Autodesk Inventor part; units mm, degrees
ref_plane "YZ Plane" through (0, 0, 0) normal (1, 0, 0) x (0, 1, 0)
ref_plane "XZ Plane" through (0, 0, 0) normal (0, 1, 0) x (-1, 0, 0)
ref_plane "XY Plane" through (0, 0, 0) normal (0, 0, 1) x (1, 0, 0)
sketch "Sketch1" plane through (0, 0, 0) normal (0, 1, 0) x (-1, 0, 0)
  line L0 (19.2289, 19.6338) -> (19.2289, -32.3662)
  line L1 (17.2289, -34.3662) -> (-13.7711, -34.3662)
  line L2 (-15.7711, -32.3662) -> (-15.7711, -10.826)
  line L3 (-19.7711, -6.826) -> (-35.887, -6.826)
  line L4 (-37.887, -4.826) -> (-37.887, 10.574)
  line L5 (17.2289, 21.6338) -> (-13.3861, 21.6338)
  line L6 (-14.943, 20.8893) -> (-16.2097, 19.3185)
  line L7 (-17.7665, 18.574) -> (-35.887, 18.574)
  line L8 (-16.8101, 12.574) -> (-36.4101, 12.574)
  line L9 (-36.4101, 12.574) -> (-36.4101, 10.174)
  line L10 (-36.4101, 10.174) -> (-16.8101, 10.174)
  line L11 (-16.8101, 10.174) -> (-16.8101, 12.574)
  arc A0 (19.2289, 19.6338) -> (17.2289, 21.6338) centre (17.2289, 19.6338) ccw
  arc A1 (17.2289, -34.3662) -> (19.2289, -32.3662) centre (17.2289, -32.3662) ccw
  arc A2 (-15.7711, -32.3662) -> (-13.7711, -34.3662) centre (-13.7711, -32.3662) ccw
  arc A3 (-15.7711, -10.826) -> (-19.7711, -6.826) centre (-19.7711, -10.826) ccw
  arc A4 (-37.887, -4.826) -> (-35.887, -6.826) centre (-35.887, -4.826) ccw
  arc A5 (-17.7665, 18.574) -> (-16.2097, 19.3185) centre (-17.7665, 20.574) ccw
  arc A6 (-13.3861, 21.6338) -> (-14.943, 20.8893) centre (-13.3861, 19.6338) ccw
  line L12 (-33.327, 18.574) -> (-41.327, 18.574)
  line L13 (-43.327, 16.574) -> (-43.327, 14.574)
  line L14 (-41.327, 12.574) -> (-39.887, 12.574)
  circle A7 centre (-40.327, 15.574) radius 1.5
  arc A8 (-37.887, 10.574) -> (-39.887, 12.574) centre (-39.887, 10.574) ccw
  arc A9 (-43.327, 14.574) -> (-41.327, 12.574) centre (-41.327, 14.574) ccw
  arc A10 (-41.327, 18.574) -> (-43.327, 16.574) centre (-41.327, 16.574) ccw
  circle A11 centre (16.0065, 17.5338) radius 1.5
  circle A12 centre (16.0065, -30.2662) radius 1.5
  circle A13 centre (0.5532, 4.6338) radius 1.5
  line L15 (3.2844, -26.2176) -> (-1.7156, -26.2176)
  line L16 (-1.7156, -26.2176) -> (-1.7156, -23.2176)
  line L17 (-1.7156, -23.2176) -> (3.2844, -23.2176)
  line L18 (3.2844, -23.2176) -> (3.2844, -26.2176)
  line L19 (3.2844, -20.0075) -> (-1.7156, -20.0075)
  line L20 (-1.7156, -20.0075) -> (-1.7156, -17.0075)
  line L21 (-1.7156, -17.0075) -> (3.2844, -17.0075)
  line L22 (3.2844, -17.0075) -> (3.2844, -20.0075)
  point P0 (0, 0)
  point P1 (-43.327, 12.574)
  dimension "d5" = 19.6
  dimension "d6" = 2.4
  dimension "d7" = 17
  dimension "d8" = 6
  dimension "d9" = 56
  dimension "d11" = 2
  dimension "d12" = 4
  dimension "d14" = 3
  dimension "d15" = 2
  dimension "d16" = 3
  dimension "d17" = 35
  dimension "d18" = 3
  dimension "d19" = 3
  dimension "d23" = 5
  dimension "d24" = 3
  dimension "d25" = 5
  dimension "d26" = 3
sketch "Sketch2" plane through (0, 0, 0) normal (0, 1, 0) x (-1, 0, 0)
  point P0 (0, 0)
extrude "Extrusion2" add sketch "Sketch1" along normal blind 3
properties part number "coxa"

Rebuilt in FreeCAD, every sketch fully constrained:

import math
import FreeCAD as App
import Part
import Sketcher
from FreeCAD import Vector
Q = App.Units.Quantity


def add_polygon(sketch, points):
    """Adds a closed chain of lines whose ends are joined by coincident constraints."""
    first, n = sketch.GeometryCount, len(points)
    for a, b in zip(points, points[1:] + points[:1]):
        sketch.addGeometry(Part.LineSegment(App.Vector(*a, 0), App.Vector(*b, 0)), False)
    for i in range(n):
        sketch.addConstraint(Sketcher.Constraint("Coincident", first + i, 2, first + (i + 1) % n, 1))

doc = App.newDocument("Part")
body = doc.addObject("PartDesign::Body", "Body")

sketch1 = body.newObject("Sketcher::SketchObject", "Sketch")
sketch1.AttachmentSupport = (doc.getObject("XZ_Plane"), [""])
sketch1.MapMode = "FlatFace"
sketch1.addGeometry(Part.LineSegment(Vector(-19.2289, -32.3662, 0), Vector(-19.2289, 19.6338, 0)), False)
sketch1.addGeometry(Part.ArcOfCircle(Part.Circle(Vector(-17.2289, 19.6338, 0), Vector(0, 0, 1), 2), math.radians(90), math.radians(180)), False)
sketch1.addGeometry(Part.LineSegment(Vector(-17.2289, 21.6338, 0), Vector(13.3861, 21.6338, 0)), False)
sketch1.addGeometry(Part.ArcOfCircle(Part.Circle(Vector(13.3861, 19.6338, 0), Vector(0, 0, 1), 2), math.radians(38.883058), math.radians(90)), False)
sketch1.addGeometry(Part.LineSegment(Vector(14.943, 20.8893, 0), Vector(16.2097, 19.3185, 0)), False)
sketch1.addGeometry(Part.ArcOfCircle(Part.Circle(Vector(17.7665, 20.574, 0), Vector(0, 0, 1), 2), math.radians(-141.115144), math.radians(-90)), False)
sketch1.addGeometry(Part.LineSegment(Vector(17.7665, 18.574, 0), Vector(41.327, 18.574, 0)), False)
sketch1.addGeometry(Part.ArcOfCircle(Part.Circle(Vector(41.327, 16.574, 0), Vector(0, 0, 1), 2), math.radians(0), math.radians(90)), False)
sketch1.addGeometry(Part.LineSegment(Vector(43.327, 16.574, 0), Vector(43.327, 14.574, 0)), False)
sketch1.addGeometry(Part.ArcOfCircle(Part.Circle(Vector(41.327, 14.574, 0), Vector(0, 0, 1), 2), math.radians(-90), math.radians(0)), False)
sketch1.addGeometry(Part.LineSegment(Vector(41.327, 12.574, 0), Vector(39.887, 12.574, 0)), False)
sketch1.addGeometry(Part.ArcOfCircle(Part.Circle(Vector(39.887, 10.574, 0), Vector(0, 0, 1), 2), math.radians(90), math.radians(180)), False)
sketch1.addGeometry(Part.LineSegment(Vector(37.887, 10.574, 0), Vector(37.887, -4.826, 0)), False)
sketch1.addGeometry(Part.ArcOfCircle(Part.Circle(Vector(35.887, -4.826, 0), Vector(0, 0, 1), 2), math.radians(-90), math.radians(0)), False)
sketch1.addGeometry(Part.LineSegment(Vector(35.887, -6.826, 0), Vector(19.7711, -6.826, 0)), False)
sketch1.addGeometry(Part.ArcOfCircle(Part.Circle(Vector(19.7711, -10.826, 0), Vector(0, 0, 1), 4), math.radians(90), math.radians(180)), False)
sketch1.addGeometry(Part.LineSegment(Vector(15.7711, -10.826, 0), Vector(15.7711, -32.3662, 0)), False)
sketch1.addGeometry(Part.ArcOfCircle(Part.Circle(Vector(13.7711, -32.3662, 0), Vector(0, 0, 1), 2), math.radians(-90), math.radians(0)), False)
sketch1.addGeometry(Part.LineSegment(Vector(13.7711, -34.3662, 0), Vector(-17.2289, -34.3662, 0)), False)
sketch1.addGeometry(Part.ArcOfCircle(Part.Circle(Vector(-17.2289, -32.3662, 0), Vector(0, 0, 1), 2), math.radians(180), math.radians(270)), False)
add_polygon(sketch1, [(-3.2844, -23.2176), (-3.2844, -26.2176), (1.7156, -26.2176), (1.7156, -23.2176)])
sketch1.addGeometry(Part.Circle(Vector(-16.0065, -30.2662, 0), Vector(0, 0, 1), 1.5), False)
add_polygon(sketch1, [(-3.2844, -17.0075), (-3.2844, -20.0075), (1.7156, -20.0075), (1.7156, -17.0075)])
sketch1.addGeometry(Part.Circle(Vector(40.327, 15.574, 0), Vector(0, 0, 1), 1.5), False)
add_polygon(sketch1, [(36.4101, 12.574), (16.8101, 12.574), (16.8101, 10.174), (36.4101, 10.174)])
sketch1.addGeometry(Part.Circle(Vector(-0.5532, 4.6338, 0), Vector(0, 0, 1), 1.5), False)
sketch1.addGeometry(Part.Circle(Vector(-16.0065, 17.5338, 0), Vector(0, 0, 1), 1.5), False)
sketch1.addConstraint([
    Sketcher.Constraint("Tangent", 0, 2, 1, 2),
    Sketcher.Constraint("Tangent", 1, 1, 2, 1),
    Sketcher.Constraint("Tangent", 2, 2, 3, 2),
    Sketcher.Constraint("Tangent", 3, 1, 4, 1),
    Sketcher.Constraint("Tangent", 4, 2, 5, 1),
    Sketcher.Constraint("Tangent", 5, 2, 6, 1),
    Sketcher.Constraint("Tangent", 6, 2, 7, 2),
    Sketcher.Constraint("Tangent", 7, 1, 8, 1),
    Sketcher.Constraint("Tangent", 8, 2, 9, 2),
    Sketcher.Constraint("Tangent", 9, 1, 10, 1),
    Sketcher.Constraint("Tangent", 10, 2, 11, 1),
    Sketcher.Constraint("Tangent", 11, 2, 12, 1),
    Sketcher.Constraint("Tangent", 12, 2, 13, 2),
    Sketcher.Constraint("Tangent", 13, 1, 14, 1),
    Sketcher.Constraint("Tangent", 14, 2, 15, 1),
    Sketcher.Constraint("Tangent", 15, 2, 16, 1),
    Sketcher.Constraint("Tangent", 16, 2, 17, 2),
    Sketcher.Constraint("Tangent", 17, 1, 18, 1),
    Sketcher.Constraint("Tangent", 18, 2, 19, 2),
    Sketcher.Constraint("Tangent", 19, 1, 0, 1),
    Sketcher.Constraint("Vertical", 0),
    Sketcher.Constraint("Horizontal", 2),
    Sketcher.Constraint("Horizontal", 6),
    Sketcher.Constraint("Vertical", 8),
    Sketcher.Constraint("Horizontal", 10),
    Sketcher.Constraint("Vertical", 12),
    Sketcher.Constraint("Horizontal", 14),
    Sketcher.Constraint("Vertical", 16),
    Sketcher.Constraint("Horizontal", 18),
    Sketcher.Constraint("Vertical", 20),
    Sketcher.Constraint("Horizontal", 21),
    Sketcher.Constraint("Vertical", 22),
    Sketcher.Constraint("Horizontal", 23),
    Sketcher.Constraint("Vertical", 25),
    Sketcher.Constraint("Horizontal", 26),
    Sketcher.Constraint("Vertical", 27),
    Sketcher.Constraint("Horizontal", 28),
    Sketcher.Constraint("Horizontal", 30),
    Sketcher.Constraint("Vertical", 31),
    Sketcher.Constraint("Horizontal", 32),
    Sketcher.Constraint("Vertical", 33),
    Sketcher.Constraint("Equal", 1, 3),
    Sketcher.Constraint("Equal", 3, 5),
    Sketcher.Constraint("Equal", 5, 7),
    Sketcher.Constraint("Equal", 7, 9),
    Sketcher.Constraint("Equal", 9, 11),
    Sketcher.Constraint("Equal", 11, 13),
    Sketcher.Constraint("Equal", 13, 17),
    Sketcher.Constraint("Equal", 17, 19),
    Sketcher.Constraint("Equal", 24, 29),
    Sketcher.Constraint("Equal", 29, 34),
    Sketcher.Constraint("Equal", 34, 35),
    Sketcher.Constraint("Horizontal", 10, 2, 30, 2),
    Sketcher.Constraint("Vertical", 24, 3, 35, 3),
    Sketcher.Constraint("Vertical", 23, 2, 25, 2),
    Sketcher.Constraint("Vertical", 22, 2, 26, 2),
    Sketcher.Constraint("Equal", 22, 25),
    Sketcher.Constraint("Diameter", 24, Q("3 mm")),
    Sketcher.Constraint("Radius", 1, Q("2 mm")),
    Sketcher.Constraint("Radius", 15, Q("4 mm")),
    Sketcher.Constraint("DistanceX", 21, 1, 21, 2, Q("5 mm")),
    Sketcher.Constraint("DistanceY", 8, 2, 8, 1, Q("2 mm")),
    Sketcher.Constraint("DistanceY", 20, 2, 20, 1, Q("3 mm")),
    Sketcher.Constraint("DistanceX", 30, 2, 30, 1, Q("19.6 mm")),
    Sketcher.Constraint("DistanceY", 31, 2, 31, 1, Q("2.4 mm")),
    Sketcher.Constraint("DistanceY", 11, 3, 29, 3, Q("5 mm")),
    Sketcher.Constraint("DistanceY", 34, 3, 1, 1, Q("17 mm")),
    Sketcher.Constraint("DistanceX", 29, 3, 7, 1, Q("3 mm")),
    Sketcher.Constraint("DistanceX", 18, 2, 18, 1, Q("31 mm")),
    Sketcher.Constraint("DistanceY", 0, 1, 0, 2, Q("52 mm")),
    Sketcher.Constraint("DistanceY", 12, 2, 12, 1, Q("15.4 mm")),
    Sketcher.Constraint("DistanceX", 10, 2, 10, 1, Q("1.44 mm")),
    Sketcher.Constraint("DistanceY", 19, 3, 24, 3, Q("2.1 mm")),
    Sketcher.Constraint("DistanceY", 35, 3, 1, 3, Q("2.1 mm")),
    Sketcher.Constraint("DistanceX", 2, 1, 2, 2, Q("30.615 mm")),
    Sketcher.Constraint("DistanceX", 14, 2, 14, 1, Q("16.116 mm")),
    Sketcher.Constraint("DistanceX", -1, 1, 30, 2, Q("16.81 mm")),
    Sketcher.Constraint("DistanceY", 23, 2, 25, 2, Q("3.21 mm")),
    Sketcher.Constraint("Distance", 4, Q("2.018 mm")),
    Sketcher.Constraint("DistanceX", 6, 1, 6, 2, Q("23.5605 mm")),
    Sketcher.Constraint("DistanceX", 1, 3, -1, 1, Q("17.229 mm")),
    Sketcher.Constraint("DistanceY", -1, 1, 5, 3, Q("20.574 mm")),
    Sketcher.Constraint("DistanceX", 35, 3, 5, 3, Q("33.773 mm")),
    Sketcher.Constraint("DistanceX", 34, 3, 4, 2, Q("16.763 mm")),
    Sketcher.Constraint("DistanceX", 24, 3, 20, 2, Q("12.722 mm")),
    Sketcher.Constraint("DistanceY", 20, 2, -1, 1, Q("26.2176 mm")),
])
pad1 = body.newObject("PartDesign::Pad", "Pad")
pad1.Profile = sketch1
pad1.Length = 3
pad1.Reversed = True

doc.recompute()
